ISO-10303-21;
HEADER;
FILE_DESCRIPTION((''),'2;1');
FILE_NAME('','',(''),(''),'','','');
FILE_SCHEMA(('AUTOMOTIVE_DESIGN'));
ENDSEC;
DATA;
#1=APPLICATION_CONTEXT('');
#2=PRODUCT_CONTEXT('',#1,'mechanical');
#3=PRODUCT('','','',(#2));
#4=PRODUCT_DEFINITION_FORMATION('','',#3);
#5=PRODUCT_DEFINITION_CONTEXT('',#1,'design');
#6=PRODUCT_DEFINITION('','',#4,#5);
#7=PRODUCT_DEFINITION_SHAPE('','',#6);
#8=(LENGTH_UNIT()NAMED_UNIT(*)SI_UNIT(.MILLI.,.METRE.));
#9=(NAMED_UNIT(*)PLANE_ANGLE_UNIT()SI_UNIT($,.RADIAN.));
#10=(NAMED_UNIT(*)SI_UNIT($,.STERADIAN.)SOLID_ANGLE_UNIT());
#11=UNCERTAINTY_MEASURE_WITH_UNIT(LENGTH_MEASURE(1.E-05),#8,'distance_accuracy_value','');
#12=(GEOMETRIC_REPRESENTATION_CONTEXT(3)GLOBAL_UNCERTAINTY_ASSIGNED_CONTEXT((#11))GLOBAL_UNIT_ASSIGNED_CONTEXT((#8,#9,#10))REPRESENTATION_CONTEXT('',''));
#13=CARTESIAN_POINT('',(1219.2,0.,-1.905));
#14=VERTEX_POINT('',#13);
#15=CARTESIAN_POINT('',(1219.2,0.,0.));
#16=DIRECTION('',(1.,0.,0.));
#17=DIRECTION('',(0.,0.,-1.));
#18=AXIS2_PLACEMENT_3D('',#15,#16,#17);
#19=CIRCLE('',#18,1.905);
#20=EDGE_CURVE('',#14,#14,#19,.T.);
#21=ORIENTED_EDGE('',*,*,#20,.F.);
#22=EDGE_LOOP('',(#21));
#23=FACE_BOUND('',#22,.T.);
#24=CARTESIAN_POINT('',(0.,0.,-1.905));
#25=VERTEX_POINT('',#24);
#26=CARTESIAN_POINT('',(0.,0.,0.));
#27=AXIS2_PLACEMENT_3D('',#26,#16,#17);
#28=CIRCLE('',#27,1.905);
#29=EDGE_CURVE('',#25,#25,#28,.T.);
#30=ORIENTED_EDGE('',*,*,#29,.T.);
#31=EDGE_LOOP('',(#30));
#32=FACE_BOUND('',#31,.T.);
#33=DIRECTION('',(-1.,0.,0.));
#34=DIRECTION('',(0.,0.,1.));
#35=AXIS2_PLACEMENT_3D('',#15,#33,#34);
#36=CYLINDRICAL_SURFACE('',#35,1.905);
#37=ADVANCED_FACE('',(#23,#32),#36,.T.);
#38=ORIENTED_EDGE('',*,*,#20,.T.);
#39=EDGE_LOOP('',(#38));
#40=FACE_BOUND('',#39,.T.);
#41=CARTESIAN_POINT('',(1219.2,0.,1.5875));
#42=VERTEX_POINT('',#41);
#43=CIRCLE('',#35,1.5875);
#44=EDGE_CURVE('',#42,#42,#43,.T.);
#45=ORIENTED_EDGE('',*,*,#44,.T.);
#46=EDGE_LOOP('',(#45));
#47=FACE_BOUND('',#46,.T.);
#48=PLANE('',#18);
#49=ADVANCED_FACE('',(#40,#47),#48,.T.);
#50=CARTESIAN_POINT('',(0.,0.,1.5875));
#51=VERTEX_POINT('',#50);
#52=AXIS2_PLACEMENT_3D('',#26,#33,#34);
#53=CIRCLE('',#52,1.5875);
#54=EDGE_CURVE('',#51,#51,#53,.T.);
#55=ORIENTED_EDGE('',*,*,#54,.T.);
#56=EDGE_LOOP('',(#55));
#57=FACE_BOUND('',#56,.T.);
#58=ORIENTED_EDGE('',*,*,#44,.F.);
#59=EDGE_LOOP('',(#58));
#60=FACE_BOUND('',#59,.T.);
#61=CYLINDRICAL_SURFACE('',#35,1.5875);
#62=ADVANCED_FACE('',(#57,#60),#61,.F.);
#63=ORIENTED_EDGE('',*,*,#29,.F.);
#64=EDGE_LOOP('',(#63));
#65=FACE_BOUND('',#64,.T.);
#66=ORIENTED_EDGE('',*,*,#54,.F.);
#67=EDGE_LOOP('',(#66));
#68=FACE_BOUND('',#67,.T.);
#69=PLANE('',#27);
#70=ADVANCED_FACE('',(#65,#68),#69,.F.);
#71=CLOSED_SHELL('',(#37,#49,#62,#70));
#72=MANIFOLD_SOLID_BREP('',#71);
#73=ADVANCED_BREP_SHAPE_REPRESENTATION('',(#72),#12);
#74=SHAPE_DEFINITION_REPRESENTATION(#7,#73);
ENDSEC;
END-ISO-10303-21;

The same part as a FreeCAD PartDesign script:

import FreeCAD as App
import Part
import Sketcher

V = App.Vector
Q = App.Units.Quantity

doc = App.newDocument("Part")
body = doc.addObject("PartDesign::Body", "Body")

sketch1 = body.newObject("Sketcher::SketchObject", "Sketch")
sketch1.AttachmentSupport = (doc.getObject("YZ_Plane"), [""])
sketch1.MapMode = "FlatFace"
sketch1.addGeometry(Part.Circle(V(0, 0, 0), V(0, 0, 1), 1.9), False)
sketch1.addConstraint(Sketcher.Constraint("Coincident", 0, 3, -1, 1))
sketch1.addConstraint(Sketcher.Constraint("Diameter", 0, Q("0.15 in")))
pad1 = body.newObject("PartDesign::Pad", "Pad")
pad1.Profile = sketch1
pad1.Length = Q("48 in")

sketch2 = body.newObject("Sketcher::SketchObject", "Sketch001")
sketch2.AttachmentSupport = (doc.getObject("YZ_Plane"), [""])
sketch2.MapMode = "FlatFace"
sketch2.addGeometry(Part.Circle(V(0, 0, 0), V(0, 0, 1), 1.6), False)
sketch2.addConstraint(Sketcher.Constraint("Coincident", 0, 3, -1, 1))
sketch2.addConstraint(Sketcher.Constraint("Diameter", 0, Q("0.125 in")))
pocket1 = body.newObject("PartDesign::Pocket", "Pocket")
pocket1.Profile = sketch2
pocket1.Type = "ThroughAll"
pocket1.Reversed = True

doc.recompute()
